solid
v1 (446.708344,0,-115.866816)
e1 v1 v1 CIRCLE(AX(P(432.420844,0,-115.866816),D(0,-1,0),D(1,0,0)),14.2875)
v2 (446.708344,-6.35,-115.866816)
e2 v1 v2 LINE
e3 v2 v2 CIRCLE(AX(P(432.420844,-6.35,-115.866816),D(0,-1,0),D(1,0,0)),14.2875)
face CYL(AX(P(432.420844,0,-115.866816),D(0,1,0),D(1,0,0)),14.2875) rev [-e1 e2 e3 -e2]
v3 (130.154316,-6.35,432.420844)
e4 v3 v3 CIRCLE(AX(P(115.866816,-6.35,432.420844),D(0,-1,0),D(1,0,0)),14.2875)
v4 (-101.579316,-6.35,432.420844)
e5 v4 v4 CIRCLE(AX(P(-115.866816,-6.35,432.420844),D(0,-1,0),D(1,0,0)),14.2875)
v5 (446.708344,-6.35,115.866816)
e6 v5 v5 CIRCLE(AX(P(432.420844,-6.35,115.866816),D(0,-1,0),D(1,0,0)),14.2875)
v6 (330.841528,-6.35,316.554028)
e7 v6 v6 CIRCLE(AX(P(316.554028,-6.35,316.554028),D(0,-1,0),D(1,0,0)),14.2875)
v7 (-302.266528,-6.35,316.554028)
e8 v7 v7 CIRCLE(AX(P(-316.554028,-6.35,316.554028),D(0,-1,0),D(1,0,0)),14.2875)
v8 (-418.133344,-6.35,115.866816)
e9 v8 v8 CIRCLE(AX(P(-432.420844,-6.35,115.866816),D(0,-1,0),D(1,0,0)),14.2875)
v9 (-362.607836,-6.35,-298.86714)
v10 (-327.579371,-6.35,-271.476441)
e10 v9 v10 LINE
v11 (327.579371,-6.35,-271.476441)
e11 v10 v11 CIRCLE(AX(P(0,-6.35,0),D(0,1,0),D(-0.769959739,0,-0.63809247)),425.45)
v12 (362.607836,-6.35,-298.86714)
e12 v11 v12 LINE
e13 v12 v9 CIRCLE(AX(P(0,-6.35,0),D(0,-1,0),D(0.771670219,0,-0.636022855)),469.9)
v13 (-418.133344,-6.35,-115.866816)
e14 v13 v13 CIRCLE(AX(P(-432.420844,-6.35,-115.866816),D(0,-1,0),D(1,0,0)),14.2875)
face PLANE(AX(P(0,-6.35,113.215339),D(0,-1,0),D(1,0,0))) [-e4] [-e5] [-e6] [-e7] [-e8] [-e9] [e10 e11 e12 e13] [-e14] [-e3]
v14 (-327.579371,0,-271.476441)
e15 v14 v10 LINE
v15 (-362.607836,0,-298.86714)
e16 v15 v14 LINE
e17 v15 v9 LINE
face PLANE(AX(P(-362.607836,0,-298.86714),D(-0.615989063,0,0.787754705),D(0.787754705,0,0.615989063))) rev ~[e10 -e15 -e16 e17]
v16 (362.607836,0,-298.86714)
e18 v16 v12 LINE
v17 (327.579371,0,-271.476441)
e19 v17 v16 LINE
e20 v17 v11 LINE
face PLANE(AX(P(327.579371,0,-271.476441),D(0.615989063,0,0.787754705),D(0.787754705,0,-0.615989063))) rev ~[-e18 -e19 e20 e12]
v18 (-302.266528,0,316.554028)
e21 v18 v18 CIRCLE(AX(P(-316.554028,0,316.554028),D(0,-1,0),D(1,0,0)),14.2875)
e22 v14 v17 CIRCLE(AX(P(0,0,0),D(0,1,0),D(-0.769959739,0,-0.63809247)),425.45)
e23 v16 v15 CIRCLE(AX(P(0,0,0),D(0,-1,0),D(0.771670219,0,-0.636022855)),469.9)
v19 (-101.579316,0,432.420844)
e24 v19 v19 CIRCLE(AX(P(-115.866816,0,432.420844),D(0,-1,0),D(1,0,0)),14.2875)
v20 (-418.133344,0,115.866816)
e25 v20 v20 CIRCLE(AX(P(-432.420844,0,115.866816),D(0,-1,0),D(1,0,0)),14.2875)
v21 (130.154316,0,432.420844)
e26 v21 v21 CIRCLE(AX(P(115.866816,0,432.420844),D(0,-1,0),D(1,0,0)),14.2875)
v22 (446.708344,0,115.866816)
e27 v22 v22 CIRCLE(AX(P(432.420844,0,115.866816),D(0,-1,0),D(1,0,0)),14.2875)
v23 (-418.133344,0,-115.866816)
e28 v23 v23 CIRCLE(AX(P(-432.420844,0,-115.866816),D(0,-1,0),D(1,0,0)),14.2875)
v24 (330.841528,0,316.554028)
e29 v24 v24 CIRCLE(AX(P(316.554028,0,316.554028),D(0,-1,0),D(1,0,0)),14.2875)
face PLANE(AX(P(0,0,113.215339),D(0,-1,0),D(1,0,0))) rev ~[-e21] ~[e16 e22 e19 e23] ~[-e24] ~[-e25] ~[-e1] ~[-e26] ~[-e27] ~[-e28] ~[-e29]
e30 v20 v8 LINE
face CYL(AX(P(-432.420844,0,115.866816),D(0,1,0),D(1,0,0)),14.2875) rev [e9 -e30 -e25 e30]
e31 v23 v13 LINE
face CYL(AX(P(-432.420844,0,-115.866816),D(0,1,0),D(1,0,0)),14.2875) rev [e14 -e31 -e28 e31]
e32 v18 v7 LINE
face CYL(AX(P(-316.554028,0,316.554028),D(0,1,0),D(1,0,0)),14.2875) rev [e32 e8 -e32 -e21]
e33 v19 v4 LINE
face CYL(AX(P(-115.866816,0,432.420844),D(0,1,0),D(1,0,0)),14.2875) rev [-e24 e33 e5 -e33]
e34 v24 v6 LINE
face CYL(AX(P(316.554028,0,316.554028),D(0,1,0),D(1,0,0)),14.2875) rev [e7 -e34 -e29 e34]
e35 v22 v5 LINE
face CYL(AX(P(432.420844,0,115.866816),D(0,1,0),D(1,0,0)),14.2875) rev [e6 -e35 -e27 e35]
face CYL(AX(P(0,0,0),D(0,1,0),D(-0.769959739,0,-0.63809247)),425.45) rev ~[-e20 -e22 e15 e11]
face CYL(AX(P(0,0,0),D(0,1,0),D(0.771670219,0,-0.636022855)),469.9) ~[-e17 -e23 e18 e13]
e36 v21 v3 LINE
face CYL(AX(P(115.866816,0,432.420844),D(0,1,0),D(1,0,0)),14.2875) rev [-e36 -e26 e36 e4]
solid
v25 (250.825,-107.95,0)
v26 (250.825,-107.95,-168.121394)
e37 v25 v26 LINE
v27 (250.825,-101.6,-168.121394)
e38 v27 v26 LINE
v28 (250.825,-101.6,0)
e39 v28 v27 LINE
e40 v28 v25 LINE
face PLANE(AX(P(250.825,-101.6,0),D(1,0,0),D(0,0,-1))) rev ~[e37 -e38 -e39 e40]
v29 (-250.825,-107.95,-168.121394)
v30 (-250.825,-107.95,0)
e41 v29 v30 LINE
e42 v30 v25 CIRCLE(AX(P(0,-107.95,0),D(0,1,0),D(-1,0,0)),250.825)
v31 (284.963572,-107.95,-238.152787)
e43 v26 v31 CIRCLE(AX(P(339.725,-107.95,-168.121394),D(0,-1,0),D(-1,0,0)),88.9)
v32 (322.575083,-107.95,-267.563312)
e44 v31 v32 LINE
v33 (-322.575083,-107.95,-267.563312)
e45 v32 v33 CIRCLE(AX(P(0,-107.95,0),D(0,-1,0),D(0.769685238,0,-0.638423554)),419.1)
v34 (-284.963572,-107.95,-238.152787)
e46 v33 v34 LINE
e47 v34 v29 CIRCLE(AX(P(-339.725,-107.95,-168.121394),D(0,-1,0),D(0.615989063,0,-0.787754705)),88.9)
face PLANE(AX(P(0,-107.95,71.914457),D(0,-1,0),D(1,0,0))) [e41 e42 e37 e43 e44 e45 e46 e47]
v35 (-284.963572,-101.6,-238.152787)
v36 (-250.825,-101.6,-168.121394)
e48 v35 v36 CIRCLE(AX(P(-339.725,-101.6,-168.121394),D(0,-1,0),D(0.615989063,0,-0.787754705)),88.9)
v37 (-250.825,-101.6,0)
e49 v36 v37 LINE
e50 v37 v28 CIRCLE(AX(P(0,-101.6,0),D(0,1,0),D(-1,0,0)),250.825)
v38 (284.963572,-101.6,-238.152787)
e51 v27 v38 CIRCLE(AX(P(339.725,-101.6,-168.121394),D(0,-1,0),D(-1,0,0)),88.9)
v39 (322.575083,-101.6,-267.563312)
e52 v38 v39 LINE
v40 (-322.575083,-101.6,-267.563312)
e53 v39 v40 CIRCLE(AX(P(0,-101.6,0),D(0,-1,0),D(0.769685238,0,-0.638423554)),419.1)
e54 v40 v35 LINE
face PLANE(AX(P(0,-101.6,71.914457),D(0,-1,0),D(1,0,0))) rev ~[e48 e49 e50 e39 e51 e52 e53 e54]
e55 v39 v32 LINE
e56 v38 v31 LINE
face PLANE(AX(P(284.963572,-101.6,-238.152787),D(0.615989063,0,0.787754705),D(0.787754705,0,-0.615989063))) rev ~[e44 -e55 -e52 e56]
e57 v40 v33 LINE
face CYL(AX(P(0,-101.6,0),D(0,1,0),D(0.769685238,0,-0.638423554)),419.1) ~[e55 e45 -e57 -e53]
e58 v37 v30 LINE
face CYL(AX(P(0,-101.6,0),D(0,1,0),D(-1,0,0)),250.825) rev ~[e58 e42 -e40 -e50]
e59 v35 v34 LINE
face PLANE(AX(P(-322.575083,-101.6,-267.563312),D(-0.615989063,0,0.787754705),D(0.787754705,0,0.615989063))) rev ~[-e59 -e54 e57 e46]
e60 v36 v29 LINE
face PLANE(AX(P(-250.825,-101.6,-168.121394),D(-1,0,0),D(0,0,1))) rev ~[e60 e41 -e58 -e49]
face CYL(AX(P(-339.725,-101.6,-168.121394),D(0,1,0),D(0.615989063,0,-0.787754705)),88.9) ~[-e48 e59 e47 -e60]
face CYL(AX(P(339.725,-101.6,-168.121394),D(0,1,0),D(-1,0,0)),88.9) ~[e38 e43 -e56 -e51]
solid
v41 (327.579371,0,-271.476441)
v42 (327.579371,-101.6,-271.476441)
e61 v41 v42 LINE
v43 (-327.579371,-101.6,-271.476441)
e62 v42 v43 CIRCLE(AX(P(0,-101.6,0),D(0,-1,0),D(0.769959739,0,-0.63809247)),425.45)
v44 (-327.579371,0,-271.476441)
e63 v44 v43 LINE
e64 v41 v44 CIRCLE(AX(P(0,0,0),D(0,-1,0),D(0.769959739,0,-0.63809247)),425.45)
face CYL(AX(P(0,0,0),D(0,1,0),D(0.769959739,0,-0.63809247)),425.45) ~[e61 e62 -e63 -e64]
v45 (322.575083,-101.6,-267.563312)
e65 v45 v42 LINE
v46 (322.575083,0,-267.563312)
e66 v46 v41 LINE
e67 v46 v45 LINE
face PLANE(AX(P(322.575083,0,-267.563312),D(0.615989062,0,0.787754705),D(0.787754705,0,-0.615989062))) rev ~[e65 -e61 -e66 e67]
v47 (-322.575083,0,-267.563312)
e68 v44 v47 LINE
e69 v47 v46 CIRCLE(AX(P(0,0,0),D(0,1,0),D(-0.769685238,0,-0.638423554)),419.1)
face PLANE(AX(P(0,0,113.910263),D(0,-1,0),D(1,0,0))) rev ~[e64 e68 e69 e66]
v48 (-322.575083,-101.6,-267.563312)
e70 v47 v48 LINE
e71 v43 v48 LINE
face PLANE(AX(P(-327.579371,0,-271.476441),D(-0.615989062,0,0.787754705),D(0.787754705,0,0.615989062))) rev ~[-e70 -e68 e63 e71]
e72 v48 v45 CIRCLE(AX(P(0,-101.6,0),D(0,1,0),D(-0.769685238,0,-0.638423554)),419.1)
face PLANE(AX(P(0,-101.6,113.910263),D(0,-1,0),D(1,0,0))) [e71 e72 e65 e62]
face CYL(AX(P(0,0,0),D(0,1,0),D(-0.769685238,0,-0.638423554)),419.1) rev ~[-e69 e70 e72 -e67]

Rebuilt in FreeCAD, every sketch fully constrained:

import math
import FreeCAD as App
import Part
import Sketcher
Q = App.Units.Quantity

doc = App.newDocument("Part")
params = doc.addObject("Spreadsheet::Sheet", "Params")
for row, (alias, value) in enumerate([
    ("sketch1_radius", "18.5 in"),
    ("sketch1_radius2", "16.75 in"),
    ("sketch1_diameter", "1.125 in"),
    ("pad1_length", "0.25 in"),
    ("sketch2_radius", "16.5 in"),
    ("sketch2_radius2", "16.75 in"),
    ("pad2_length", "4 in"),
    ("sketch3_radius", "3.5 in"),
    ("sketch3_radius2", "16.5 in"),
    ("sketch3_radius3", "9.875 in"),
    ("pad3_length", "0.25 in"),
], start=1):
    params.set(f"A{row}", alias)
    params.set(f"B{row}", "=" + value)
    params.setAlias(f"B{row}", alias)

body = doc.addObject("PartDesign::Body", "Body")

sketch1 = body.newObject("Sketcher::SketchObject", "Sketch")
sketch1.AttachmentSupport = (doc.getObject("XZ_Plane"), [""])
sketch1.MapMode = "FlatFace"
sketch1.addGeometry(Part.ArcOfCircle(Part.Circle(App.Vector(0, 0, 0), App.Vector(0, 0, 1), 470), math.radians(-39), math.radians(219)), False)
sketch1.addGeometry(Part.LineSegment(App.Vector(-363, -299, 0), App.Vector(-328, -271, 0)), False)
sketch1.addGeometry(Part.ArcOfCircle(Part.Circle(App.Vector(0, 0, 0), App.Vector(0, 0, 1), 425), math.radians(-40), math.radians(220)), False)
sketch1.addGeometry(Part.LineSegment(App.Vector(328, -271, 0), App.Vector(363, -299, 0)), False)
sketch1.addGeometry(Part.Circle(App.Vector(-432, -116, 0), App.Vector(0, 0, 1), 14), False)
sketch1.addGeometry(Part.Circle(App.Vector(-432, 116, 0), App.Vector(0, 0, 1), 14), False)
sketch1.addGeometry(Part.Circle(App.Vector(432, -116, 0), App.Vector(0, 0, 1), 14), False)
sketch1.addGeometry(Part.Circle(App.Vector(432, 116, 0), App.Vector(0, 0, 1), 14), False)
sketch1.addGeometry(Part.Circle(App.Vector(-317, 317, 0), App.Vector(0, 0, 1), 14), False)
sketch1.addGeometry(Part.Circle(App.Vector(-116, 432, 0), App.Vector(0, 0, 1), 14), False)
sketch1.addGeometry(Part.Circle(App.Vector(116, 432, 0), App.Vector(0, 0, 1), 14), False)
sketch1.addGeometry(Part.Circle(App.Vector(317, 317, 0), App.Vector(0, 0, 1), 14), False)
sketch1.addConstraint(Sketcher.Constraint("Coincident", 0, 2, 1, 1))
sketch1.addConstraint(Sketcher.Constraint("Coincident", 1, 2, 2, 2))
sketch1.addConstraint(Sketcher.Constraint("Coincident", 2, 1, 3, 1))
sketch1.addConstraint(Sketcher.Constraint("Coincident", 3, 2, 0, 1))
sketch1.addConstraint(Sketcher.Constraint("Coincident", 0, 3, -1, 1))
sketch1.addConstraint(Sketcher.Constraint("Coincident", 2, 3, -1, 1))
sketch1.addConstraint(Sketcher.Constraint("Equal", 4, 5))
sketch1.addConstraint(Sketcher.Constraint("Equal", 5, 6))
sketch1.addConstraint(Sketcher.Constraint("Equal", 6, 7))
sketch1.addConstraint(Sketcher.Constraint("Equal", 7, 8))
sketch1.addConstraint(Sketcher.Constraint("Equal", 8, 9))
sketch1.addConstraint(Sketcher.Constraint("Equal", 9, 10))
sketch1.addConstraint(Sketcher.Constraint("Equal", 10, 11))
sketch1.addConstraint(Sketcher.Constraint("Symmetric", 5, 3, 6, 3, -1, 1))
sketch1.addConstraint(Sketcher.Constraint("Symmetric", 4, 3, 7, 3, -1, 1))
sketch1.addConstraint(Sketcher.Constraint("Symmetric", 4, 3, 6, 3, -2))
sketch1.addConstraint(Sketcher.Constraint("Symmetric", 9, 3, 10, 3, -2))
sketch1.addConstraint(Sketcher.Constraint("Symmetric", 8, 3, 11, 3, -2))
sketch1.addConstraint(Sketcher.Constraint("Horizontal", 1, 2, 2, 1))
sketch1.addConstraint(Sketcher.Constraint("Horizontal", 0, 2, 3, 2))
sketch1.addConstraint(Sketcher.Constraint("Radius", 0, Q("18.5 in")))
sketch1.addConstraint(Sketcher.Constraint("Radius", 2, Q("16.75 in")))
sketch1.addConstraint(Sketcher.Constraint("Diameter", 4, Q("1.125 in")))
sketch1.addConstraint(Sketcher.Constraint("DistanceY", 0, 2, 1, 2, 27.390698))
sketch1.addConstraint(Sketcher.Constraint("DistanceX", 8, 3, -1, 1, 316.554028))
sketch1.addConstraint(Sketcher.Constraint("DistanceY", -1, 1, 8, 3, 316.554028))
sketch1.addConstraint(Sketcher.Constraint("DistanceX", 1, 2, -1, 1, 327.579371))
sketch1.addConstraint(Sketcher.Constraint("DistanceX", 4, 3, 6, 3, 864.841689))
sketch1.addConstraint(Sketcher.Constraint("DistanceX", 5, 3, 9, 3, 316.554028))
sketch1.addConstraint(Sketcher.Constraint("DistanceY", 5, 3, 9, 3, 316.554028))
sketch1.addConstraint(Sketcher.Constraint("DistanceY", 4, 3, 9, 3, 548.28766))
sketch1.setExpression("Constraints[20]", "Params.sketch1_radius")
sketch1.setExpression("Constraints[21]", "Params.sketch1_radius2")
sketch1.setExpression("Constraints[22]", "Params.sketch1_diameter")
pad1 = body.newObject("PartDesign::Pad", "Pad")
pad1.Profile = sketch1
pad1.setExpression("Length", "Params.pad1_length")
body2 = doc.addObject("PartDesign::Body", "Body001")

sketch2 = body2.newObject("Sketcher::SketchObject", "Sketch001")
sketch2.AttachmentSupport = (doc.getObject("XZ_Plane001"), [""])
sketch2.MapMode = "FlatFace"
sketch2.addGeometry(Part.LineSegment(App.Vector(-328, -271, 0), App.Vector(-323, -268, 0)), False)
sketch2.addGeometry(Part.ArcOfCircle(Part.Circle(App.Vector(0, 0, 0), App.Vector(0, 0, 1), 419), math.radians(-40), math.radians(220)), False)
sketch2.addGeometry(Part.LineSegment(App.Vector(323, -268, 0), App.Vector(328, -271, 0)), False)
sketch2.addGeometry(Part.ArcOfCircle(Part.Circle(App.Vector(0, 0, 0), App.Vector(0, 0, 1), 425), math.radians(-40), math.radians(220)), False)
sketch2.addConstraint(Sketcher.Constraint("Coincident", 0, 2, 1, 2))
sketch2.addConstraint(Sketcher.Constraint("Coincident", 1, 1, 2, 1))
sketch2.addConstraint(Sketcher.Constraint("Coincident", 2, 2, 3, 1))
sketch2.addConstraint(Sketcher.Constraint("Coincident", 3, 2, 0, 1))
sketch2.addConstraint(Sketcher.Constraint("Coincident", 1, 3, -1, 1))
sketch2.addConstraint(Sketcher.Constraint("Coincident", 3, 3, -1, 1))
sketch2.addConstraint(Sketcher.Constraint("Horizontal", 0, 2, 1, 1))
sketch2.addConstraint(Sketcher.Constraint("Horizontal", 2, 2, 3, 2))
sketch2.addConstraint(Sketcher.Constraint("Radius", 1, Q("16.5 in")))
sketch2.addConstraint(Sketcher.Constraint("Radius", 3, Q("16.75 in")))
sketch2.addConstraint(Sketcher.Constraint("DistanceY", 0, 2, -1, 1, 267.563312))
sketch2.addConstraint(Sketcher.Constraint("DistanceX", -1, 1, 2, 2, 327.579371))
sketch2.setExpression("Constraints[8]", "Params.sketch2_radius")
sketch2.setExpression("Constraints[9]", "Params.sketch2_radius2")
pad2 = body2.newObject("PartDesign::Pad", "Pad001")
pad2.Profile = sketch2
pad2.setExpression("Length", "Params.pad2_length")
body3 = doc.addObject("PartDesign::Body", "Body002")

sketch3 = body3.newObject("Sketcher::SketchObject", "Sketch002")
sketch3.AttachmentSupport = (doc.getObject("XZ_Plane002"), [""])
sketch3.MapMode = "FlatFace"
sketch3.AttachmentOffset = App.Placement(App.Vector(0, 0, 4 * 25.4), App.Rotation())
sketch3.addGeometry(Part.LineSegment(App.Vector(-323, -268, 0), App.Vector(-285, -238, 0)), False)
sketch3.addGeometry(Part.ArcOfCircle(Part.Circle(App.Vector(-340, -168, 0), App.Vector(0, 0, 1), 89), math.radians(-52), math.radians(0)), False)
sketch3.addGeometry(Part.LineSegment(App.Vector(-251, -168, 0), App.Vector(-251, 0, 0)), False)
sketch3.addGeometry(Part.ArcOfCircle(Part.Circle(App.Vector(0, 0, 0), App.Vector(0, 0, 1), 251), math.radians(0), math.radians(180)), False)
sketch3.addGeometry(Part.LineSegment(App.Vector(251, 0, 0), App.Vector(251, -168, 0)), False)
sketch3.addGeometry(Part.ArcOfCircle(Part.Circle(App.Vector(340, -168, 0), App.Vector(0, 0, 1), 89), math.radians(180), math.radians(232)), False)
sketch3.addGeometry(Part.LineSegment(App.Vector(285, -238, 0), App.Vector(323, -268, 0)), False)
sketch3.addGeometry(Part.ArcOfCircle(Part.Circle(App.Vector(0, 0, 0), App.Vector(0, 0, 1), 419), math.radians(-40), math.radians(220)), False)
sketch3.addConstraint(Sketcher.Constraint("Tangent", 0, 2, 1, 1))
sketch3.addConstraint(Sketcher.Constraint("Tangent", 1, 2, 2, 1))
sketch3.addConstraint(Sketcher.Constraint("Tangent", 2, 2, 3, 2))
sketch3.addConstraint(Sketcher.Constraint("Tangent", 3, 1, 4, 1))
sketch3.addConstraint(Sketcher.Constraint("Tangent", 4, 2, 5, 1))
sketch3.addConstraint(Sketcher.Constraint("Tangent", 5, 2, 6, 1))
sketch3.addConstraint(Sketcher.Constraint("Coincident", 6, 2, 7, 1))
sketch3.addConstraint(Sketcher.Constraint("Coincident", 7, 2, 0, 1))
sketch3.addConstraint(Sketcher.Constraint("Vertical", 2))
sketch3.addConstraint(Sketcher.Constraint("Vertical", 4))
sketch3.addConstraint(Sketcher.Constraint("Coincident", 3, 3, -1, 1))
sketch3.addConstraint(Sketcher.Constraint("Coincident", 7, 3, -1, 1))
sketch3.addConstraint(Sketcher.Constraint("Equal", 1, 5))
sketch3.addConstraint(Sketcher.Constraint("Symmetric", 0, 2, 5, 2, -2))
sketch3.addConstraint(Sketcher.Constraint("Radius", 1, Q("3.5 in")))
sketch3.addConstraint(Sketcher.Constraint("Radius", 7, Q("16.5 in")))
sketch3.addConstraint(Sketcher.Constraint("Radius", 3, Q("9.875 in")))
sketch3.addConstraint(Sketcher.Constraint("DistanceY", 2, 1, 2, 2, 168.121394))
sketch3.addConstraint(Sketcher.Constraint("DistanceY", 6, 2, -1, 1, 267.563312))
sketch3.setExpression("Constraints[14]", "Params.sketch3_radius")
sketch3.setExpression("Constraints[15]", "Params.sketch3_radius2")
sketch3.setExpression("Constraints[16]", "Params.sketch3_radius3")
pad3 = body3.newObject("PartDesign::Pad", "Pad002")
pad3.Profile = sketch3
pad3.setExpression("Length", "Params.pad3_length")

doc.recompute()
